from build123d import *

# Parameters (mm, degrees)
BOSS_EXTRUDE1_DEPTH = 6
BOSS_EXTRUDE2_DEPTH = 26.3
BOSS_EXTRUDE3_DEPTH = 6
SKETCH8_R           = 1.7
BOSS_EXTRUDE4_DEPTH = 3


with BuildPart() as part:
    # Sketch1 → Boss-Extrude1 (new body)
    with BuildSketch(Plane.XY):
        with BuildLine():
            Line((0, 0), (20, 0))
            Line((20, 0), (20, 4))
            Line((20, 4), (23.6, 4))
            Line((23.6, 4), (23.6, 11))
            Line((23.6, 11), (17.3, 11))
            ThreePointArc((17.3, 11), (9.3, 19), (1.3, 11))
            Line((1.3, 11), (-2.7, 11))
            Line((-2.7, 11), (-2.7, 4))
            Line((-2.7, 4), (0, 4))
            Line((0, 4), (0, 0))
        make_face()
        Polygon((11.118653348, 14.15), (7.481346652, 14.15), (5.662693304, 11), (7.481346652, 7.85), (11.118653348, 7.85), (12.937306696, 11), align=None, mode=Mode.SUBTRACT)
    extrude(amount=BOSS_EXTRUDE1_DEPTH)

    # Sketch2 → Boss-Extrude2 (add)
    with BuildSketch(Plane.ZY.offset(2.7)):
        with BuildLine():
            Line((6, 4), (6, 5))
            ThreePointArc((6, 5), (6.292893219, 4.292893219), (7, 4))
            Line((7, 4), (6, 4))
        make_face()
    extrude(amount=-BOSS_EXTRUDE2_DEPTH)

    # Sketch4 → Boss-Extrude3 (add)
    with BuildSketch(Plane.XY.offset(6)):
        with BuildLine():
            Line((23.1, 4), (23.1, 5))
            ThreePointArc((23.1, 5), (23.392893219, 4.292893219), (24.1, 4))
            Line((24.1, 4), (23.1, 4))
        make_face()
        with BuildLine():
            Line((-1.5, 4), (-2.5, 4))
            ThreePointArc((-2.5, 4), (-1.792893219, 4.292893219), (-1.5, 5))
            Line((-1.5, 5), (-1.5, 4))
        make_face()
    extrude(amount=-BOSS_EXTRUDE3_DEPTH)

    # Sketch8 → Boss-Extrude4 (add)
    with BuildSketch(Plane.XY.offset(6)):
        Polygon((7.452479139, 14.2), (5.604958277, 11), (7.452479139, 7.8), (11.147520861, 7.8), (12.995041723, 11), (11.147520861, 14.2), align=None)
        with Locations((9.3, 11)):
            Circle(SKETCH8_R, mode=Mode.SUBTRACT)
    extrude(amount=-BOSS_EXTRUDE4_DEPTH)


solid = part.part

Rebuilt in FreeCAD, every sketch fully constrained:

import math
import FreeCAD as App
import Part
import Sketcher
from FreeCAD import Vector
Q = App.Units.Quantity


def add_polygon(sketch, points):
    """Adds a closed chain of lines whose ends are joined by coincident constraints."""
    first, n = sketch.GeometryCount, len(points)
    for a, b in zip(points, points[1:] + points[:1]):
        sketch.addGeometry(Part.LineSegment(App.Vector(*a, 0), App.Vector(*b, 0)), False)
    for i in range(n):
        sketch.addConstraint(Sketcher.Constraint("Coincident", first + i, 2, first + (i + 1) % n, 1))

doc = App.newDocument("Part")
body = doc.addObject("PartDesign::Body", "Body")

# Sketch on XY plane
sketch1 = body.newObject("Sketcher::SketchObject", "Sketch")
sketch1.AttachmentSupport = (doc.getObject("XY_Plane"), [""])
sketch1.MapMode = "FlatFace"
sketch1.addGeometry(Part.LineSegment(Vector(0, 0, 0), Vector(20, 0, 0)), False)  # 0
sketch1.addGeometry(Part.LineSegment(Vector(20, 0, 0), Vector(20, 4, 0)), False)  # 1
sketch1.addGeometry(Part.LineSegment(Vector(20, 4, 0), Vector(23.6, 4, 0)), False)  # 2
sketch1.addGeometry(Part.LineSegment(Vector(23.6, 4, 0), Vector(23.6, 11, 0)), False)  # 3
sketch1.addGeometry(Part.LineSegment(Vector(23.6, 11, 0), Vector(17.3, 11, 0)), False)  # 4
sketch1.addGeometry(Part.ArcOfCircle(Part.Circle(Vector(9.3, 11, 0), Vector(0, 0, 1), 8), math.radians(0), math.radians(180)), False)  # 5
sketch1.addGeometry(Part.LineSegment(Vector(1.3, 11, 0), Vector(-2.7, 11, 0)), False)  # 6
sketch1.addGeometry(Part.LineSegment(Vector(-2.7, 11, 0), Vector(-2.7, 4, 0)), False)  # 7
sketch1.addGeometry(Part.LineSegment(Vector(-2.7, 4, 0), Vector(0, 4, 0)), False)  # 8
sketch1.addGeometry(Part.LineSegment(Vector(0, 4, 0), Vector(0, 0, 0)), False)  # 9
add_polygon(sketch1, [(7.5, 14.2), (11.1, 14.2), (12.9, 11), (11.1, 7.8), (7.5, 7.8), (5.7, 11)])  # lines 10-15
sketch1.addConstraint([
    Sketcher.Constraint("Coincident", 0, 2, 1, 1),
    Sketcher.Constraint("Coincident", 1, 2, 2, 1),
    Sketcher.Constraint("Coincident", 2, 2, 3, 1),
    Sketcher.Constraint("Coincident", 3, 2, 4, 1),
    Sketcher.Constraint("Coincident", 4, 2, 5, 1),
    Sketcher.Constraint("Coincident", 5, 2, 6, 1),
    Sketcher.Constraint("Coincident", 6, 2, 7, 1),
    Sketcher.Constraint("Coincident", 7, 2, 8, 1),
    Sketcher.Constraint("Coincident", 8, 2, 9, 1),
    Sketcher.Constraint("Coincident", 9, 2, 0, 1),
    Sketcher.Constraint("Horizontal", 0),
    Sketcher.Constraint("Vertical", 1),
    Sketcher.Constraint("Horizontal", 2),
    Sketcher.Constraint("Vertical", 3),
    Sketcher.Constraint("Horizontal", 4),
    Sketcher.Constraint("Horizontal", 6),
    Sketcher.Constraint("Vertical", 7),
    Sketcher.Constraint("Horizontal", 8),
    Sketcher.Constraint("Vertical", 9),
    Sketcher.Constraint("Horizontal", 10),
    Sketcher.Constraint("Horizontal", 13),
    Sketcher.Constraint("Coincident", 9, 2, -1, 1),
    Sketcher.Constraint("Parallel", 11, 14),
    Sketcher.Constraint("Parallel", 12, 15),
    Sketcher.Constraint("Horizontal", 5, 3, 3, 2),
    Sketcher.Constraint("Horizontal", 4, 2, 5, 2),
    Sketcher.Constraint("Horizontal", 2, 2, 7, 2),
    Sketcher.Constraint("Horizontal", 6, 2, 11, 2),
    Sketcher.Constraint("Horizontal", 11, 2, 14, 2),
    Sketcher.Constraint("Vertical", 10, 2, 12, 2),
    Sketcher.Constraint("Vertical", 13, 2, 15, 2),
    Sketcher.Constraint("Equal", 6, 1),
    Sketcher.Constraint("Radius", 5, 8.0),
    Sketcher.Constraint("DistanceX", 0, 1, 0, 2, 20.0),
    Sketcher.Constraint("DistanceX", 6, 2, 6, 1, 4.0),
    Sketcher.Constraint("DistanceY", 3, 1, 3, 2, 7.0),
    Sketcher.Constraint("Angle", 11, Q("-60 deg")),
    Sketcher.Constraint("DistanceX", 2, 1, 2, 2, 3.6),
    Sketcher.Constraint("DistanceX", 4, 2, 4, 1, 6.3),
    Sketcher.Constraint("DistanceY", 12, 2, 10, 2, 6.3),
    Sketcher.Constraint("DistanceX", 10, 1, 10, 2, 3.637307),
    Sketcher.Constraint("DistanceX", -1, 1, 10, 2, 11.118653),
])
pad1 = body.newObject("PartDesign::Pad", "Pad")
pad1.Profile = sketch1
pad1.Length = 6

# Sketch on YZ plane
sketch2 = body.newObject("Sketcher::SketchObject", "Sketch001")
sketch2.AttachmentSupport = (doc.getObject("YZ_Plane"), [""])
sketch2.MapMode = "FlatFace"
sketch2.AttachmentOffset = App.Placement(Vector(0, 0, -2.7), App.Rotation())
sketch2.addGeometry([
    Part.LineSegment(Vector(5, 6, 0), Vector(4, 6, 0)),
    Part.LineSegment(Vector(4, 6, 0), Vector(4, 7, 0)),
    Part.ArcOfCircle(Part.Circle(Vector(5, 7, 0), Vector(0, 0, 1), 1), math.radians(-180), math.radians(-90)),
], False)
sketch2.addConstraint([
    Sketcher.Constraint("Coincident", 0, 2, 1, 1),
    Sketcher.Constraint("Tangent", 1, 2, 2, 1),
    Sketcher.Constraint("Tangent", 2, 2, 0, 1),
    Sketcher.Constraint("Horizontal", 0),
    Sketcher.Constraint("Vertical", 1),
    Sketcher.Constraint("Radius", 2, 1.0),
    Sketcher.Constraint("DistanceX", -1, 1, 2, 3, 5.0),
    Sketcher.Constraint("DistanceY", -1, 1, 2, 3, 7.0),
])
pad2 = body.newObject("PartDesign::Pad", "Pad001")
pad2.Profile = sketch2
pad2.Length = 26.3

# Sketch on XY plane
sketch3 = body.newObject("Sketcher::SketchObject", "Sketch002")
sketch3.AttachmentSupport = (doc.getObject("XY_Plane"), [""])
sketch3.MapMode = "FlatFace"
sketch3.AttachmentOffset = App.Placement(Vector(0, 0, 6), App.Rotation())
sketch3.addGeometry([
    Part.LineSegment(Vector(23.1, 5, 0), Vector(23.1, 4, 0)),  # 0
    Part.LineSegment(Vector(23.1, 4, 0), Vector(24.1, 4, 0)),  # 1
    Part.ArcOfCircle(Part.Circle(Vector(24.1, 5, 0), Vector(0, 0, 1), 1), math.radians(-180), math.radians(-90)),  # 2
    Part.LineSegment(Vector(-2.5, 4, 0), Vector(-1.5, 4, 0)),  # 3
    Part.LineSegment(Vector(-1.5, 4, 0), Vector(-1.5, 5, 0)),  # 4
    Part.ArcOfCircle(Part.Circle(Vector(-2.5, 5, 0), Vector(0, 0, 1), 1), math.radians(-90), math.radians(0)),  # 5
], False)
sketch3.addConstraint([
    Sketcher.Constraint("Coincident", 0, 2, 1, 1),
    Sketcher.Constraint("Tangent", 1, 2, 2, 2),
    Sketcher.Constraint("Tangent", 2, 1, 0, 1),
    Sketcher.Constraint("Coincident", 3, 2, 4, 1),
    Sketcher.Constraint("Tangent", 4, 2, 5, 2),
    Sketcher.Constraint("Tangent", 5, 1, 3, 1),
    Sketcher.Constraint("Vertical", 0),
    Sketcher.Constraint("Horizontal", 1),
    Sketcher.Constraint("Horizontal", 3),
    Sketcher.Constraint("Vertical", 4),
    Sketcher.Constraint("Equal", 2, 5),
    Sketcher.Constraint("Horizontal", 2, 3, 5, 3),
    Sketcher.Constraint("Radius", 2, 1.0),
    Sketcher.Constraint("DistanceY", -1, 1, 2, 3, 5.0),
    Sketcher.Constraint("DistanceX", -1, 1, 2, 3, 24.1),
    Sketcher.Constraint("DistanceX", 5, 3, -1, 1, 2.5),
])
pad3 = body.newObject("PartDesign::Pad", "Pad002")
pad3.Profile = sketch3
pad3.Length = 6
pad3.Reversed = True

# Sketch on XY plane
sketch4 = body.newObject("Sketcher::SketchObject", "Sketch003")
sketch4.AttachmentSupport = (doc.getObject("XY_Plane"), [""])
sketch4.MapMode = "FlatFace"
sketch4.AttachmentOffset = App.Placement(Vector(0, 0, 6), App.Rotation())
add_polygon(sketch4, [(7.5, 14.2), (5.6, 11), (7.5, 7.8), (11.1, 7.8), (13, 11), (11.1, 14.2)])  # lines 0-5
sketch4.addGeometry(Part.Circle(Vector(9.3, 11, 0), Vector(0, 0, 1), 1.7), False)  # 6
sketch4.addConstraint([
    Sketcher.Constraint("Horizontal", 2),
    Sketcher.Constraint("Horizontal", 5),
    Sketcher.Constraint("Parallel", 0, 3),
    Sketcher.Constraint("Parallel", 1, 4),
    Sketcher.Constraint("Horizontal", 6, 3, 0, 2),
    Sketcher.Constraint("Horizontal", 0, 2, 3, 2),
    Sketcher.Constraint("Vertical", 2, 2, 4, 2),
    Sketcher.Constraint("Vertical", 1, 2, 5, 2),
    Sketcher.Constraint("Diameter", 6, 3.4),
    Sketcher.Constraint("Angle", 0, Q("-120 deg")),
    Sketcher.Constraint("DistanceY", -1, 1, 6, 3, 11.0),
    Sketcher.Constraint("DistanceX", -1, 1, 6, 3, 9.3),
    Sketcher.Constraint("DistanceY", -1, 1, 1, 2, 7.8),
    Sketcher.Constraint("DistanceX", 2, 1, 2, 2, 3.695042),
    Sketcher.Constraint("DistanceX", -1, 1, 0, 2, 5.604958),
])
pad4 = body.newObject("PartDesign::Pad", "Pad003")
pad4.Profile = sketch4
pad4.Length = 3
pad4.Reversed = True

doc.recompute()
